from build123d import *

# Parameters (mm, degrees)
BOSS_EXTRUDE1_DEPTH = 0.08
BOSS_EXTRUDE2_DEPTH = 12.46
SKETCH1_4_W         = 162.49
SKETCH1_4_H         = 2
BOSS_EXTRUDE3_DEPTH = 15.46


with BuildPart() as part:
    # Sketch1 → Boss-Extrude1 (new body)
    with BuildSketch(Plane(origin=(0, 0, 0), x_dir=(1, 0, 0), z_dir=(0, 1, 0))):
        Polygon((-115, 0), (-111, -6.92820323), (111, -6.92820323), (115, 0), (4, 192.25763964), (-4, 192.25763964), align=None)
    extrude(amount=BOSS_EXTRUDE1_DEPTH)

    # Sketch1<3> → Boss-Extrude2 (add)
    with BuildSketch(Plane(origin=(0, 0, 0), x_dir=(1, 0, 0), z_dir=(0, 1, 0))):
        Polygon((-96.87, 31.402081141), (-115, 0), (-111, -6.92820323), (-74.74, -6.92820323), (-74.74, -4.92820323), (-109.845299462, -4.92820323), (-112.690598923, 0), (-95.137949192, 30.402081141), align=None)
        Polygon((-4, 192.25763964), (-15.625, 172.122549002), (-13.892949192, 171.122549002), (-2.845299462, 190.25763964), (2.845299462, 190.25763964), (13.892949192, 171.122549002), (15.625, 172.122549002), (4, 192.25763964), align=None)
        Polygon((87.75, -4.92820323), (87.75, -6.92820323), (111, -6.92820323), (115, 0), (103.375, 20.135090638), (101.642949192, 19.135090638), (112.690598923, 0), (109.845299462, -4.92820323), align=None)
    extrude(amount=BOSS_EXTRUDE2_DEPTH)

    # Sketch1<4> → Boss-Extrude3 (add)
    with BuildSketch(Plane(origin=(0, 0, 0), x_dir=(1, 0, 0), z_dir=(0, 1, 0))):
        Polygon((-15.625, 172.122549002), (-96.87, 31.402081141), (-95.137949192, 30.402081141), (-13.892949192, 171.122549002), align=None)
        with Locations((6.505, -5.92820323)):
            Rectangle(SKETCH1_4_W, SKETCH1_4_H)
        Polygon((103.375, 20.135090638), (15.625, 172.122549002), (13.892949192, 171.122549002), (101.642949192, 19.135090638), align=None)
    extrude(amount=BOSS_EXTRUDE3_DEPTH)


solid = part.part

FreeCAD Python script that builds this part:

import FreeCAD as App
import Part
import Sketcher

V = App.Vector
Q = App.Units.Quantity

doc = App.newDocument("Part")
params = doc.addObject("Spreadsheet::Sheet", "Params")
for row, (alias, value) in enumerate([
    ("sketch1_width", "222 mm"),
    ("sketch1_width2", "8 mm"),
    ("sketch1_length", "8 mm"),
    ("pad1_length", "0.08 mm"),
    ("sketch2_width", "8 mm"),
    ("sketch2_height", "2 mm"),
    ("sketch2_length", "8 mm"),
    ("sketch2_length2", "2 mm"),
    ("sketch2_width2", "36.26 mm"),
    ("pad2_length", "12.46 mm"),
    ("sketch3_height", "2 mm"),
    ("sketch3_length", "2 mm"),
    ("sketch3_length2", "175.5 mm"),
    ("sketch3_width", "162.49 mm"),
    ("sketch3_length3", "162.49 mm"),
    ("pad3_length", "15.46 mm"),
], start=1):
    params.set(f"A{row}", alias)
    params.set(f"B{row}", "=" + value)
    params.setAlias(f"B{row}", alias)

body = doc.addObject("PartDesign::Body", "Body")

# Sketch on XZ plane
sketch1 = body.newObject("Sketcher::SketchObject", "Sketch")
sketch1.AttachmentSupport = (doc.getObject("XZ_Plane"), [""])
sketch1.MapMode = "FlatFace"
sketch1.addGeometry([
    Part.LineSegment(V(-115, 0, 0), V(-111, 7, 0)),  # 0
    Part.LineSegment(V(-111, 7, 0), V(111, 7, 0)),  # 1
    Part.LineSegment(V(111, 7, 0), V(115, 0, 0)),  # 2
    Part.LineSegment(V(115, 0, 0), V(4, -192, 0)),  # 3
    Part.LineSegment(V(4, -192, 0), V(-4, -192, 0)),  # 4
    Part.LineSegment(V(-4, -192, 0), V(-115, 0, 0)),  # 5
], False)
sketch1.addConstraint([
    Sketcher.Constraint("Coincident", 0, 2, 1, 1),
    Sketcher.Constraint("Coincident", 1, 2, 2, 1),
    Sketcher.Constraint("Coincident", 2, 2, 3, 1),
    Sketcher.Constraint("Coincident", 3, 2, 4, 1),
    Sketcher.Constraint("Coincident", 4, 2, 5, 1),
    Sketcher.Constraint("Coincident", 5, 2, 0, 1),
    Sketcher.Constraint("Horizontal", 1),
    Sketcher.Constraint("Horizontal", 4),
    Sketcher.Constraint("Symmetric", 2, 2, 5, 2, -1, 1),
    Sketcher.Constraint("PointOnObject", 2, 2, -1),
    Sketcher.Constraint("Parallel", 0, 3),
    Sketcher.Constraint("Parallel", 2, 5),
    Sketcher.Constraint("Equal", 0, 2),
    Sketcher.Constraint("DistanceX", 1, 1, 1, 2, Q("222 mm")),
    Sketcher.Constraint("DistanceX", 4, 2, 4, 1, Q("8 mm")),
    Sketcher.Constraint("Angle", 0, Q("60 deg")),
    Sketcher.Constraint("Distance", 0, Q("8 mm")),
])
sketch1.setExpression("Constraints[13]", "Params.sketch1_width")
sketch1.setExpression("Constraints[14]", "Params.sketch1_width2")
sketch1.setExpression("Constraints[16]", "Params.sketch1_length")
pad1 = body.newObject("PartDesign::Pad", "Pad")
pad1.Profile = sketch1
pad1.setExpression("Length", "Params.pad1_length")
pad1.Reversed = True

# Sketch on XZ plane
sketch2 = body.newObject("Sketcher::SketchObject", "Sketch001")
sketch2.AttachmentSupport = (doc.getObject("XZ_Plane"), [""])
sketch2.MapMode = "FlatFace"
sketch2.addGeometry([
    Part.LineSegment(V(-96.9, -31.4, 0), V(-115, 0, 0)),  # 0
    Part.LineSegment(V(-115, 0, 0), V(-111, 6.9, 0)),  # 1
    Part.LineSegment(V(-111, 6.9, 0), V(-74.7, 6.9, 0)),  # 2
    Part.LineSegment(V(-74.7, 6.9, 0), V(-74.7, 4.9, 0)),  # 3
    Part.LineSegment(V(-74.7, 4.9, 0), V(-109.8, 4.9, 0)),  # 4
    Part.LineSegment(V(-109.8, 4.9, 0), V(-112.7, 0, 0)),  # 5
    Part.LineSegment(V(-112.7, 0, 0), V(-95.1, -30.4, 0)),  # 6
    Part.LineSegment(V(-95.1, -30.4, 0), V(-96.9, -31.4, 0)),  # 7
    Part.LineSegment(V(-4, -192.3, 0), V(-15.6, -172.1, 0)),  # 8
    Part.LineSegment(V(-15.6, -172.1, 0), V(-13.9, -171.1, 0)),  # 9
    Part.LineSegment(V(-13.9, -171.1, 0), V(-2.8, -190.3, 0)),  # 10
    Part.LineSegment(V(-2.8, -190.3, 0), V(2.8, -190.3, 0)),  # 11
    Part.LineSegment(V(2.8, -190.3, 0), V(13.9, -171.1, 0)),  # 12
    Part.LineSegment(V(13.9, -171.1, 0), V(15.6, -172.1, 0)),  # 13
    Part.LineSegment(V(15.6, -172.1, 0), V(4, -192.3, 0)),  # 14
    Part.LineSegment(V(4, -192.3, 0), V(-4, -192.3, 0)),  # 15
    Part.LineSegment(V(87.8, 4.9, 0), V(87.8, 6.9, 0)),  # 16
    Part.LineSegment(V(87.8, 6.9, 0), V(111, 6.9, 0)),  # 17
    Part.LineSegment(V(111, 6.9, 0), V(115, 0, 0)),  # 18
    Part.LineSegment(V(115, 0, 0), V(103.4, -20.1, 0)),  # 19
    Part.LineSegment(V(103.4, -20.1, 0), V(101.6, -19.1, 0)),  # 20
    Part.LineSegment(V(101.6, -19.1, 0), V(112.7, 0, 0)),  # 21
    Part.LineSegment(V(112.7, 0, 0), V(109.8, 4.9, 0)),  # 22
    Part.LineSegment(V(109.8, 4.9, 0), V(87.8, 4.9, 0)),  # 23
], False)
sketch2.addConstraint([
    Sketcher.Constraint("Coincident", 0, 2, 1, 1),
    Sketcher.Constraint("Coincident", 1, 2, 2, 1),
    Sketcher.Constraint("Coincident", 2, 2, 3, 1),
    Sketcher.Constraint("Coincident", 3, 2, 4, 1),
    Sketcher.Constraint("Coincident", 4, 2, 5, 1),
    Sketcher.Constraint("Coincident", 5, 2, 6, 1),
    Sketcher.Constraint("Coincident", 6, 2, 7, 1),
    Sketcher.Constraint("Coincident", 7, 2, 0, 1),
    Sketcher.Constraint("Coincident", 8, 2, 9, 1),
    Sketcher.Constraint("Coincident", 9, 2, 10, 1),
    Sketcher.Constraint("Coincident", 10, 2, 11, 1),
    Sketcher.Constraint("Coincident", 11, 2, 12, 1),
    Sketcher.Constraint("Coincident", 12, 2, 13, 1),
    Sketcher.Constraint("Coincident", 13, 2, 14, 1),
    Sketcher.Constraint("Coincident", 14, 2, 15, 1),
    Sketcher.Constraint("Coincident", 15, 2, 8, 1),
    Sketcher.Constraint("Coincident", 16, 2, 17, 1),
    Sketcher.Constraint("Coincident", 17, 2, 18, 1),
    Sketcher.Constraint("Coincident", 18, 2, 19, 1),
    Sketcher.Constraint("Coincident", 19, 2, 20, 1),
    Sketcher.Constraint("Coincident", 20, 2, 21, 1),
    Sketcher.Constraint("Coincident", 21, 2, 22, 1),
    Sketcher.Constraint("Coincident", 22, 2, 23, 1),
    Sketcher.Constraint("Coincident", 23, 2, 16, 1),
    Sketcher.Constraint("Horizontal", 2),
    Sketcher.Constraint("Vertical", 3),
    Sketcher.Constraint("Horizontal", 4),
    Sketcher.Constraint("Horizontal", 11),
    Sketcher.Constraint("Horizontal", 15),
    Sketcher.Constraint("Vertical", 16),
    Sketcher.Constraint("Horizontal", 17),
    Sketcher.Constraint("Horizontal", 23),
    Sketcher.Constraint("Symmetric", 0, 2, 18, 2, -1, 1),
    Sketcher.Constraint("Symmetric", 5, 2, 21, 2, -1, 1),
    Sketcher.Constraint("Symmetric", 9, 2, 12, 2, -2),
    Sketcher.Constraint("Symmetric", 8, 2, 13, 2, -2),
    Sketcher.Constraint("Symmetric", 1, 2, 17, 2, -2),
    Sketcher.Constraint("Symmetric", 4, 2, 22, 2, -2),
    Sketcher.Constraint("PointOnObject", 0, 2, -1),
    Sketcher.Constraint("PointOnObject", 5, 2, -1),
    Sketcher.Constraint("Parallel", 1, 5),
    Sketcher.Constraint("Parallel", 0, 6),
    Sketcher.Constraint("Perpendicular", 6, 7),
    Sketcher.Constraint("Perpendicular", 7, 8),
    Sketcher.Constraint("Perpendicular", 8, 9),
    Sketcher.Constraint("Perpendicular", 9, 10),
    Sketcher.Constraint("Parallel", 5, 12),
    Sketcher.Constraint("Perpendicular", 12, 13),
    Sketcher.Constraint("Perpendicular", 13, 14),
    Sketcher.Constraint("Parallel", 14, 19),
    Sketcher.Constraint("Perpendicular", 19, 20),
    Sketcher.Constraint("Perpendicular", 20, 21),
    Sketcher.Constraint("Equal", 7, 9),
    Sketcher.Constraint("Equal", 14, 19),
    Sketcher.Constraint("Equal", 12, 21),
    Sketcher.Constraint("DistanceX", 15, 2, 15, 1, Q("8 mm")),
    Sketcher.Constraint("DistanceY", 3, 2, 3, 1, Q("2 mm")),
    Sketcher.Constraint("Angle", 0, Q("120 deg")),
    Sketcher.Constraint("Distance", 1, Q("8 mm")),
    Sketcher.Constraint("Distance", 7, Q("2 mm")),
    Sketcher.Constraint("DistanceX", 0, 2, -1, 1, Q("115 mm")),
    Sketcher.Constraint("DistanceX", 2, 1, 2, 2, Q("36.26 mm")),
    Sketcher.Constraint("DistanceX", 17, 1, 17, 2, Q("23.25 mm")),
    Sketcher.Constraint("Distance", 0, Q("36.26 mm")),
    Sketcher.Constraint("Distance", 8, Q("23.25 mm")),
    Sketcher.Constraint("DistanceY", 8, 2, -1, 1, Q("172.122549 mm")),
])
sketch2.setExpression("Constraints[55]", "Params.sketch2_width")
sketch2.setExpression("Constraints[56]", "Params.sketch2_height")
sketch2.setExpression("Constraints[58]", "Params.sketch2_length")
sketch2.setExpression("Constraints[59]", "Params.sketch2_length2")
sketch2.setExpression("Constraints[61]", "Params.sketch2_width2")
pad2 = body.newObject("PartDesign::Pad", "Pad001")
pad2.Profile = sketch2
pad2.setExpression("Length", "Params.pad2_length")
pad2.Reversed = True

# Sketch on XZ plane
sketch3 = body.newObject("Sketcher::SketchObject", "Sketch002")
sketch3.AttachmentSupport = (doc.getObject("XZ_Plane"), [""])
sketch3.MapMode = "FlatFace"
sketch3.addGeometry([
    Part.LineSegment(V(-15.6, -172.1, 0), V(-96.9, -31.4, 0)),  # 0
    Part.LineSegment(V(-96.9, -31.4, 0), V(-95.1, -30.4, 0)),  # 1
    Part.LineSegment(V(-95.1, -30.4, 0), V(-13.9, -171.1, 0)),  # 2
    Part.LineSegment(V(-13.9, -171.1, 0), V(-15.6, -172.1, 0)),  # 3
    Part.LineSegment(V(-74.7, 4.9, 0), V(-74.7, 6.9, 0)),  # 4
    Part.LineSegment(V(-74.7, 6.9, 0), V(87.8, 6.9, 0)),  # 5
    Part.LineSegment(V(87.8, 6.9, 0), V(87.8, 4.9, 0)),  # 6
    Part.LineSegment(V(87.8, 4.9, 0), V(-74.7, 4.9, 0)),  # 7
    Part.LineSegment(V(103.4, -20.1, 0), V(15.6, -172.1, 0)),  # 8
    Part.LineSegment(V(15.6, -172.1, 0), V(13.9, -171.1, 0)),  # 9
    Part.LineSegment(V(13.9, -171.1, 0), V(101.6, -19.1, 0)),  # 10
    Part.LineSegment(V(101.6, -19.1, 0), V(103.4, -20.1, 0)),  # 11
], False)
sketch3.addConstraint([
    Sketcher.Constraint("Coincident", 0, 2, 1, 1),
    Sketcher.Constraint("Coincident", 1, 2, 2, 1),
    Sketcher.Constraint("Coincident", 2, 2, 3, 1),
    Sketcher.Constraint("Coincident", 3, 2, 0, 1),
    Sketcher.Constraint("Coincident", 4, 2, 5, 1),
    Sketcher.Constraint("Coincident", 5, 2, 6, 1),
    Sketcher.Constraint("Coincident", 6, 2, 7, 1),
    Sketcher.Constraint("Coincident", 7, 2, 4, 1),
    Sketcher.Constraint("Coincident", 8, 2, 9, 1),
    Sketcher.Constraint("Coincident", 9, 2, 10, 1),
    Sketcher.Constraint("Coincident", 10, 2, 11, 1),
    Sketcher.Constraint("Coincident", 11, 2, 8, 1),
    Sketcher.Constraint("Vertical", 4),
    Sketcher.Constraint("Horizontal", 5),
    Sketcher.Constraint("Vertical", 6),
    Sketcher.Constraint("Horizontal", 7),
    Sketcher.Constraint("Symmetric", 3, 2, 8, 2, -2),
    Sketcher.Constraint("Symmetric", 2, 2, 9, 2, -2),
    Sketcher.Constraint("Perpendicular", 0, 1),
    Sketcher.Constraint("Perpendicular", 1, 2),
    Sketcher.Constraint("Perpendicular", 2, 3),
    Sketcher.Constraint("Perpendicular", 8, 9),
    Sketcher.Constraint("Perpendicular", 9, 10),
    Sketcher.Constraint("Perpendicular", 10, 11),
    Sketcher.Constraint("DistanceY", 4, 1, 4, 2, Q("2 mm")),
    Sketcher.Constraint("Angle", 0, Q("120 deg")),
    Sketcher.Constraint("Distance", 1, Q("2 mm")),
    Sketcher.Constraint("Distance", 8, Q("175.5 mm")),
    Sketcher.Constraint("DistanceX", 5, 1, 5, 2, Q("162.49 mm")),
    Sketcher.Constraint("Distance", 0, Q("162.49 mm")),
    Sketcher.Constraint("DistanceX", 0, 2, -1, 1, Q("96.87 mm")),
    Sketcher.Constraint("DistanceX", 4, 2, -1, 1, Q("74.74 mm")),
    Sketcher.Constraint("DistanceY", 0, 2, -1, 1, Q("31.402081 mm")),
    Sketcher.Constraint("DistanceY", -1, 1, 4, 2, Q("6.928203 mm")),
])
sketch3.setExpression("Constraints[24]", "Params.sketch3_height")
sketch3.setExpression("Constraints[26]", "Params.sketch3_length")
sketch3.setExpression("Constraints[27]", "Params.sketch3_length2")
sketch3.setExpression("Constraints[28]", "Params.sketch3_width")
sketch3.setExpression("Constraints[29]", "Params.sketch3_length3")
pad3 = body.newObject("PartDesign::Pad", "Pad002")
pad3.Profile = sketch3
pad3.setExpression("Length", "Params.pad3_length")
pad3.Reversed = True

doc.recompute()
